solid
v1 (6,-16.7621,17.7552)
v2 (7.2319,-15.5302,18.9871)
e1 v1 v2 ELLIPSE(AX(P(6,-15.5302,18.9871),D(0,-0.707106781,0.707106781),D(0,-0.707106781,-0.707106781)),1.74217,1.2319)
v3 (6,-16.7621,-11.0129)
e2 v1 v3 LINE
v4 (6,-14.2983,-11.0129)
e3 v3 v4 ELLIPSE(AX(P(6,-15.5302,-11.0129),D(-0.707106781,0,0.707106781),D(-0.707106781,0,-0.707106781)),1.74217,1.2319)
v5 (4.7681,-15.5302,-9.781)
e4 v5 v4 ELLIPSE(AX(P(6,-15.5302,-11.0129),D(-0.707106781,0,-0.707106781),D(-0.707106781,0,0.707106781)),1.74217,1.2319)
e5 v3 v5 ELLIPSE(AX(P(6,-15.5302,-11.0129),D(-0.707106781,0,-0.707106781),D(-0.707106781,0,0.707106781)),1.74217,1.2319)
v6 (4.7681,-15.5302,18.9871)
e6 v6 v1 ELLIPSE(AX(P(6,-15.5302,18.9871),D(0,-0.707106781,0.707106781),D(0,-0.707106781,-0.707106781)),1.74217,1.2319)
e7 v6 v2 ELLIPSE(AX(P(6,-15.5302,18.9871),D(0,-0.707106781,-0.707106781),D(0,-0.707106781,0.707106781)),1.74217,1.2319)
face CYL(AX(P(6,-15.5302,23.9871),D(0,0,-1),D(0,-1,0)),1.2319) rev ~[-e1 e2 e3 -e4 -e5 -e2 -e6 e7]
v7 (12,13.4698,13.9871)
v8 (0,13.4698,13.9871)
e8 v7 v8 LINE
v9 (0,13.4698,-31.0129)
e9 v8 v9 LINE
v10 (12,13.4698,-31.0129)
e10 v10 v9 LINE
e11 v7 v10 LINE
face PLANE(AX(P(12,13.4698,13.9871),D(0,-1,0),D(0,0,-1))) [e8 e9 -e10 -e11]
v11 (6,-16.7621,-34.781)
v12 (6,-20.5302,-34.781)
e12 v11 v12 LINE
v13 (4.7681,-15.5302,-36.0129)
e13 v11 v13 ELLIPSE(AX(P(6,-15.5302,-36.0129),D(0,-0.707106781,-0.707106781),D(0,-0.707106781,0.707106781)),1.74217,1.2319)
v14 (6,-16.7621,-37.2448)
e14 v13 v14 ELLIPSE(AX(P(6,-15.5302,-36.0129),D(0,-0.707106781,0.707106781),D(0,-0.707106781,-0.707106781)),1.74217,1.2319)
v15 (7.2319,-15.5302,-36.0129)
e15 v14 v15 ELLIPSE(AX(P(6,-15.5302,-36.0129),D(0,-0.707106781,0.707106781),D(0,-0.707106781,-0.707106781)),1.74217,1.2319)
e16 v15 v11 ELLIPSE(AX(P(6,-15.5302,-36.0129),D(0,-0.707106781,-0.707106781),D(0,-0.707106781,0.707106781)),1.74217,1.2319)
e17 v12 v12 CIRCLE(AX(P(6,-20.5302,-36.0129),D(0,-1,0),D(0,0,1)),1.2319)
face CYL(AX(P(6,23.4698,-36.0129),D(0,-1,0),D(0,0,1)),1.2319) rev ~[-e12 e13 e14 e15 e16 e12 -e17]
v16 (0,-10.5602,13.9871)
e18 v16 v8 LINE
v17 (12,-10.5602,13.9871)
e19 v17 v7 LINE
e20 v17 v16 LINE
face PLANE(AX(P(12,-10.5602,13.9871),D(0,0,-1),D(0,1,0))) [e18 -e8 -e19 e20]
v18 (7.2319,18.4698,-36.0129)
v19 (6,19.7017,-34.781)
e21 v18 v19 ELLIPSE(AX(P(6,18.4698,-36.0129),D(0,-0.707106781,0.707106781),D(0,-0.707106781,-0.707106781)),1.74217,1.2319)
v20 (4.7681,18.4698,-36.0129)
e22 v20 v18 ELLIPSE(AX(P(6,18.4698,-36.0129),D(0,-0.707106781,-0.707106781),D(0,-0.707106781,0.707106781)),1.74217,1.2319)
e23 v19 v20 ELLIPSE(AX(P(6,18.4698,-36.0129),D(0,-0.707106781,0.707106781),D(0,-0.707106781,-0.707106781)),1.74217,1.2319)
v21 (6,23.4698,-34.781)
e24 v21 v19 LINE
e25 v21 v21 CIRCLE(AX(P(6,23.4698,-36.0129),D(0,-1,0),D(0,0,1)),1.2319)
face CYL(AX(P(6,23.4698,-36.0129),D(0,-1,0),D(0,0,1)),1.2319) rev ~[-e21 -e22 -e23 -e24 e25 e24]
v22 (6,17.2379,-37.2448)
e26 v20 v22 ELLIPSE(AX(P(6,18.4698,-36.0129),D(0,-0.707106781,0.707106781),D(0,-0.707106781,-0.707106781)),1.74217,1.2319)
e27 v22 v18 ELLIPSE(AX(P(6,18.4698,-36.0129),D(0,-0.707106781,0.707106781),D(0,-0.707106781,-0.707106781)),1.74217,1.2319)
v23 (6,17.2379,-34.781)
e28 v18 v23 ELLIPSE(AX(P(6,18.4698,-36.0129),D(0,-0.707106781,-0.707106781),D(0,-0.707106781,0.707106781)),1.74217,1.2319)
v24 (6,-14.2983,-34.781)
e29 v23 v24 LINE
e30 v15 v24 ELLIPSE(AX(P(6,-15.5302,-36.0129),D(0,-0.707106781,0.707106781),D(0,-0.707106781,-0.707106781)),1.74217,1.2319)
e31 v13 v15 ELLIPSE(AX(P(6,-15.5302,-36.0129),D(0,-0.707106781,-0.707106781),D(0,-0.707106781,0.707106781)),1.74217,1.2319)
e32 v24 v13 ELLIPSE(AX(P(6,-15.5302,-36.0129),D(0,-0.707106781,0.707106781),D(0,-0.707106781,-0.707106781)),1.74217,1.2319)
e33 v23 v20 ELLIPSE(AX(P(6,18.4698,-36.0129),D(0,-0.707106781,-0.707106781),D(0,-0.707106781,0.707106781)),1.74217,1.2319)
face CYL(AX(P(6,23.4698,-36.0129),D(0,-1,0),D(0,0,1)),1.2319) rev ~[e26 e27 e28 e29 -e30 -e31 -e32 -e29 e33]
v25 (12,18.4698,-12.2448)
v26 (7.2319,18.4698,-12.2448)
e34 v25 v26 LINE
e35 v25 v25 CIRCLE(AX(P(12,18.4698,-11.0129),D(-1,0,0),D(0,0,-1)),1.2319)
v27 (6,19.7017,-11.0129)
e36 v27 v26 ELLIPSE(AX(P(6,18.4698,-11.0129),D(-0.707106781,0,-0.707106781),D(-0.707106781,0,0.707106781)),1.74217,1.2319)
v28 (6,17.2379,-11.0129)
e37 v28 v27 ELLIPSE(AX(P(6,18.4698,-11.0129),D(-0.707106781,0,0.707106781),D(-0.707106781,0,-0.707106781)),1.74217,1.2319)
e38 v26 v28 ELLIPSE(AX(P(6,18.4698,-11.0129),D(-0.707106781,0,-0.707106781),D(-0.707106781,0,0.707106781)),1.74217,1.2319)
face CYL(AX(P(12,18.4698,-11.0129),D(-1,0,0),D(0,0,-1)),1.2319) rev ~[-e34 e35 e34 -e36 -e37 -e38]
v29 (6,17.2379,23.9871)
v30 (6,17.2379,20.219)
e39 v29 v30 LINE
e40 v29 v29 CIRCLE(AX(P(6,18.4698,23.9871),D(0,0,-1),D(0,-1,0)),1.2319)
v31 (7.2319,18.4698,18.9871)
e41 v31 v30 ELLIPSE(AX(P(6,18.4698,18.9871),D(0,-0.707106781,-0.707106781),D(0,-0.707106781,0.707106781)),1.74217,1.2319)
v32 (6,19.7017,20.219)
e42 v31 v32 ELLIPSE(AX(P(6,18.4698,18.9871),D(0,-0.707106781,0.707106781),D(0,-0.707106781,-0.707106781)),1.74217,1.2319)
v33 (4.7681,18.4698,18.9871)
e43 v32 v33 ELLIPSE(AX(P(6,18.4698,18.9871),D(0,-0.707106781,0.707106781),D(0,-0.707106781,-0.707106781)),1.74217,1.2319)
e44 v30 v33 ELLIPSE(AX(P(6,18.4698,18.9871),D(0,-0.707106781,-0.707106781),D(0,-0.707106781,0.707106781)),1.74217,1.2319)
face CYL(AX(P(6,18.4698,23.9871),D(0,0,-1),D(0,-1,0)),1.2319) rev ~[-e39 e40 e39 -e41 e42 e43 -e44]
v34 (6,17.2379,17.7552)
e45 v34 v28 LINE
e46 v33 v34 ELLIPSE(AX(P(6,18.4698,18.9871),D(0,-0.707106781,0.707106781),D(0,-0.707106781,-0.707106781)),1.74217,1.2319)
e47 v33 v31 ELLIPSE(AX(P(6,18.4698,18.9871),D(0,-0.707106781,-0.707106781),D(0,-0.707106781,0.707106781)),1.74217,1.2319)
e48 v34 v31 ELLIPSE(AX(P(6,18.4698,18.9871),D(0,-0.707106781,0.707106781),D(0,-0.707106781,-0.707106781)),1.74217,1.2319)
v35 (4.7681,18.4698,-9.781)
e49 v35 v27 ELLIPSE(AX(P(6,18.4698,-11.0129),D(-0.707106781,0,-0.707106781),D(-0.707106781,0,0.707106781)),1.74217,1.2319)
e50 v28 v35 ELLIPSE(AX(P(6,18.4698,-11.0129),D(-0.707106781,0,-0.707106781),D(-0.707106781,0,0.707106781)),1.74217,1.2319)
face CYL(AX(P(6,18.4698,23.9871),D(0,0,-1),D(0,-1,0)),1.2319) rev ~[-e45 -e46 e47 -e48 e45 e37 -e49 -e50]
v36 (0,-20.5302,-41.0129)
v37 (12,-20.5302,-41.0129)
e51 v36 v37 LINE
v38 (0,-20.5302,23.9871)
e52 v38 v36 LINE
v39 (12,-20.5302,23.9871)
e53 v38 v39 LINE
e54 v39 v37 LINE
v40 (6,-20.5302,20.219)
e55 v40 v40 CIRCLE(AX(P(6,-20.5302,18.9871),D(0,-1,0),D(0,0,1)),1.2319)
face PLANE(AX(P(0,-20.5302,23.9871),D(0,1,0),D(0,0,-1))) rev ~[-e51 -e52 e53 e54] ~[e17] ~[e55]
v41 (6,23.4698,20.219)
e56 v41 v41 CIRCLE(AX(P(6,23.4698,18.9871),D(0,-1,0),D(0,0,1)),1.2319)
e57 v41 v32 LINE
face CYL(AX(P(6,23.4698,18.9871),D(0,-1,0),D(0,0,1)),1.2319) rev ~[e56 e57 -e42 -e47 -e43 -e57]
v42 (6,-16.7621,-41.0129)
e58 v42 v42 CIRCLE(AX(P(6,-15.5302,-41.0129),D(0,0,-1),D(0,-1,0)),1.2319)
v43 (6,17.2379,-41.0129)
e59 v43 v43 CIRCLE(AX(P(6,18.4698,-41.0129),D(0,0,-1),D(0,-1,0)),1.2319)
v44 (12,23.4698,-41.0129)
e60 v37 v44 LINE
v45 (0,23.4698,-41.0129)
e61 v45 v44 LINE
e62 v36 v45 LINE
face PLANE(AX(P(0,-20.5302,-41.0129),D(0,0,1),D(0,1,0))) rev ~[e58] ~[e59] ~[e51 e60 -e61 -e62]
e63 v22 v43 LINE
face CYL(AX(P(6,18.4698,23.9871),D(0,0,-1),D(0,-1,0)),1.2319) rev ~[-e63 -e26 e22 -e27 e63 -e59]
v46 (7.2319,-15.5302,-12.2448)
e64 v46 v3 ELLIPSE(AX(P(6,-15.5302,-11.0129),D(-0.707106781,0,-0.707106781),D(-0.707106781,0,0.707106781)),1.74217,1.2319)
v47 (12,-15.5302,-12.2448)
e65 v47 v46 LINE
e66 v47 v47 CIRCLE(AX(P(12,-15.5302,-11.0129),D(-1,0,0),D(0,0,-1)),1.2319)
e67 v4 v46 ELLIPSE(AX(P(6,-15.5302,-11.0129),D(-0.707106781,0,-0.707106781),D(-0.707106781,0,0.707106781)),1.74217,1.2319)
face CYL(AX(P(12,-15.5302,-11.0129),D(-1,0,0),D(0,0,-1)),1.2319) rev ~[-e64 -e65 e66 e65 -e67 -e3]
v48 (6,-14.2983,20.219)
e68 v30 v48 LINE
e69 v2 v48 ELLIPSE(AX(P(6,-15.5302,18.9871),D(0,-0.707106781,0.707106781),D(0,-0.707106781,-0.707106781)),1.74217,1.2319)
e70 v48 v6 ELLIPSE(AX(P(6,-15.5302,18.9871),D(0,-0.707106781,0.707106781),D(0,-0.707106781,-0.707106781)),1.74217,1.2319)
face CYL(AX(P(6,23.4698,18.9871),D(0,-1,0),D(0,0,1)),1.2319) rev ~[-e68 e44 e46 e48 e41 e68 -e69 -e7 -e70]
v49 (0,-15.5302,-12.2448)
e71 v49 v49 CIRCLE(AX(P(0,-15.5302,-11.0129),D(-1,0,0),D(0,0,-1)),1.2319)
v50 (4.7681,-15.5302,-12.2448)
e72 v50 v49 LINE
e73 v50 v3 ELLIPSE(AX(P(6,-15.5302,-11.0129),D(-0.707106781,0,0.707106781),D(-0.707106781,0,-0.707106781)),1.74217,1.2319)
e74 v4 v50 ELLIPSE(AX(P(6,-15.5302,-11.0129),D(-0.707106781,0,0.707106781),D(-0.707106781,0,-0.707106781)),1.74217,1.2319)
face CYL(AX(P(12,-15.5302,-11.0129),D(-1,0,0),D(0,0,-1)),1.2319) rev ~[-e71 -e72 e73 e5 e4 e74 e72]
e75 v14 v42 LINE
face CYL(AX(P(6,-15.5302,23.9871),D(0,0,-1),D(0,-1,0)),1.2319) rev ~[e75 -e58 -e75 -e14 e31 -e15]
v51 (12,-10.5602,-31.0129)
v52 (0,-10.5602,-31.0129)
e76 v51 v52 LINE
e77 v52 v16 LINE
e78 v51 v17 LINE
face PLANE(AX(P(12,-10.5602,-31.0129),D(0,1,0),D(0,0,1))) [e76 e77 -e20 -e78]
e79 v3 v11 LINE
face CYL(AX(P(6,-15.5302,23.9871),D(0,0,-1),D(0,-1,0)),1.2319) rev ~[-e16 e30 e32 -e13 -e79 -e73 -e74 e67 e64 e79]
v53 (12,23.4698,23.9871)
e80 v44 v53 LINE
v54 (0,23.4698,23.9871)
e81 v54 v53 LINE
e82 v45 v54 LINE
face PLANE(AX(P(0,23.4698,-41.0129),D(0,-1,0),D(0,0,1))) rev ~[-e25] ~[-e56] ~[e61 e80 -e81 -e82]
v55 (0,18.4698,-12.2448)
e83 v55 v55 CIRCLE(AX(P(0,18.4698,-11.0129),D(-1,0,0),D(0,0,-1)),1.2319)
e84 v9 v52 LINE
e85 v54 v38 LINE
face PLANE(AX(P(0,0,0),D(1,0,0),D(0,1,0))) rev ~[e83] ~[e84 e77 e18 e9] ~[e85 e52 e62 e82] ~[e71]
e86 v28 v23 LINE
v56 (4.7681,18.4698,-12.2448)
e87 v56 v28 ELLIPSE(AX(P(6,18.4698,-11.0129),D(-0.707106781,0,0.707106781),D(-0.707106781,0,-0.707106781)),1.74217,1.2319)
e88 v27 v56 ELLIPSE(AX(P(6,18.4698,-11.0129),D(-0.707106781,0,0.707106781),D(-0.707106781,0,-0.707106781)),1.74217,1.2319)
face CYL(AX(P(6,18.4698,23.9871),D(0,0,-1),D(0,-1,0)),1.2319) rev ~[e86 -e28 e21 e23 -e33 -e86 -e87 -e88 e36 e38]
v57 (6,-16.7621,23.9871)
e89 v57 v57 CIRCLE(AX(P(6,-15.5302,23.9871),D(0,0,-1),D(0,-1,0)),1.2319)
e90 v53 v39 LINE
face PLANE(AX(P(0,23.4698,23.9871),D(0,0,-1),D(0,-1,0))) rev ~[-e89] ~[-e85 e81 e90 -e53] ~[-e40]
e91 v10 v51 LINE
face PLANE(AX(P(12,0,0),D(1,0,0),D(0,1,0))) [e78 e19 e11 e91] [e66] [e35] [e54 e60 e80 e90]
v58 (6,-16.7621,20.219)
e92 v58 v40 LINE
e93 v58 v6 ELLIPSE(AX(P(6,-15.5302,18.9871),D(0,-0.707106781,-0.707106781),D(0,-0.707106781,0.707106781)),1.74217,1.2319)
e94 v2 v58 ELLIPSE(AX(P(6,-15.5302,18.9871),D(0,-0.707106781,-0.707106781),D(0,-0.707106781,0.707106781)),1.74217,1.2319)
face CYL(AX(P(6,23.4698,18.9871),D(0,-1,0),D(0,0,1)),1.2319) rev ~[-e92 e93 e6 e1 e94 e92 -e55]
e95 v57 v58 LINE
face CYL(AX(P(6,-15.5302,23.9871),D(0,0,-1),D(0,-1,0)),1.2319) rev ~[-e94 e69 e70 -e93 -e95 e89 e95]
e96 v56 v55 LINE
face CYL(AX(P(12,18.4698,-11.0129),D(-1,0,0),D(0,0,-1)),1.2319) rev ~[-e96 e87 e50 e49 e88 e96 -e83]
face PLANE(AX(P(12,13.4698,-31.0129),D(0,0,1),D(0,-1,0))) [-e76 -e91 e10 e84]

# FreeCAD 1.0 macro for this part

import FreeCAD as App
import Part
import Sketcher

V = App.Vector
Q = App.Units.Quantity

doc = App.newDocument("Part")
params = doc.addObject("Spreadsheet::Sheet", "Params")
for row, (alias, value) in enumerate([
    ("sketch1_width", "44 mm"),
    ("sketch1_height", "65 mm"),
    ("pad1_length", "12 mm"),
    ("sketch2_height", "45 mm"),
    ("sketch2_width", "24.03 mm"),
    ("pocket1_length", "50.1 mm"),
    ("hole_diameter", "2.4638 mm"),
    ("hole2_diameter", "2.4638 mm"),
    ("hole3_diameter", "2.4638 mm"),
], start=1):
    params.set(f"A{row}", alias)
    params.set(f"B{row}", "=" + value)
    params.setAlias(f"B{row}", alias)

body = doc.addObject("PartDesign::Body", "Body")

sketch1 = body.newObject("Sketcher::SketchObject", "Sketch")
sketch1.AttachmentSupport = (doc.getObject("YZ_Plane"), [""])
sketch1.MapMode = "FlatFace"
sketch1.addGeometry(Part.LineSegment(V(23, -41, 0), V(23, 24, 0)), False)
sketch1.addGeometry(Part.LineSegment(V(23, 24, 0), V(-21, 24, 0)), False)
sketch1.addGeometry(Part.LineSegment(V(-21, 24, 0), V(-21, -41, 0)), False)
sketch1.addGeometry(Part.LineSegment(V(-21, -41, 0), V(23, -41, 0)), False)
sketch1.addConstraint(Sketcher.Constraint("Coincident", 0, 2, 1, 1))
sketch1.addConstraint(Sketcher.Constraint("Coincident", 1, 2, 2, 1))
sketch1.addConstraint(Sketcher.Constraint("Coincident", 2, 2, 3, 1))
sketch1.addConstraint(Sketcher.Constraint("Coincident", 3, 2, 0, 1))
sketch1.addConstraint(Sketcher.Constraint("Vertical", 0))
sketch1.addConstraint(Sketcher.Constraint("Horizontal", 1))
sketch1.addConstraint(Sketcher.Constraint("Vertical", 2))
sketch1.addConstraint(Sketcher.Constraint("Horizontal", 3))
sketch1.addConstraint(Sketcher.Constraint("DistanceX", 1, 2, 1, 1, Q("44 mm")))
sketch1.addConstraint(Sketcher.Constraint("DistanceY", 0, 1, 0, 2, Q("65 mm")))
sketch1.addConstraint(Sketcher.Constraint("DistanceY", -1, 1, 0, 2, Q("23.987 mm")))
sketch1.addConstraint(Sketcher.Constraint("DistanceX", -1, 1, 0, 2, Q("23.4698 mm")))
sketch1.setExpression("Constraints[8]", "Params.sketch1_width")
sketch1.setExpression("Constraints[9]", "Params.sketch1_height")
pad1 = body.newObject("PartDesign::Pad", "Pad")
pad1.Profile = sketch1
pad1.setExpression("Length", "Params.pad1_length")

sketch2 = body.newObject("Sketcher::SketchObject", "Sketch001")
sketch2.AttachmentSupport = (doc.getObject("YZ_Plane"), [""])
sketch2.MapMode = "FlatFace"
sketch2.AttachmentOffset = App.Placement(V(0, 0, 12), App.Rotation())
sketch2.addGeometry(Part.LineSegment(V(13, -31, 0), V(13, 14, 0)), False)
sketch2.addGeometry(Part.LineSegment(V(13, 14, 0), V(-11, 14, 0)), False)
sketch2.addGeometry(Part.LineSegment(V(-11, 14, 0), V(-11, -31, 0)), False)
sketch2.addGeometry(Part.LineSegment(V(-11, -31, 0), V(13, -31, 0)), False)
sketch2.addConstraint(Sketcher.Constraint("Coincident", 0, 2, 1, 1))
sketch2.addConstraint(Sketcher.Constraint("Coincident", 1, 2, 2, 1))
sketch2.addConstraint(Sketcher.Constraint("Coincident", 2, 2, 3, 1))
sketch2.addConstraint(Sketcher.Constraint("Coincident", 3, 2, 0, 1))
sketch2.addConstraint(Sketcher.Constraint("Vertical", 0))
sketch2.addConstraint(Sketcher.Constraint("Horizontal", 1))
sketch2.addConstraint(Sketcher.Constraint("Vertical", 2))
sketch2.addConstraint(Sketcher.Constraint("Horizontal", 3))
sketch2.addConstraint(Sketcher.Constraint("DistanceY", 0, 1, 0, 2, Q("45 mm")))
sketch2.addConstraint(Sketcher.Constraint("DistanceX", 1, 2, 1, 1, Q("24.03 mm")))
sketch2.addConstraint(Sketcher.Constraint("DistanceY", -1, 1, 0, 2, Q("13.987 mm")))
sketch2.addConstraint(Sketcher.Constraint("DistanceX", -1, 1, 0, 2, Q("13.4698 mm")))
sketch2.setExpression("Constraints[8]", "Params.sketch2_height")
sketch2.setExpression("Constraints[9]", "Params.sketch2_width")
pocket1 = body.newObject("PartDesign::Pocket", "Pocket")
pocket1.Profile = sketch2
pocket1.setExpression("Length", "Params.pocket1_length")

sketch3 = body.newObject("Sketcher::SketchObject", "Sketch002")
sketch3.AttachmentSupport = (doc.getObject("YZ_Plane"), [""])
sketch3.MapMode = "FlatFace"
sketch3.AttachmentOffset = App.Placement(V(0, 0, 12), App.Rotation())
sketch3.addGeometry(Part.Circle(V(18.5, -11, 0), V(0, 0, 1), 1.2), False)
sketch3.addGeometry(Part.Circle(V(-15.5, -11, 0), V(0, 0, 1), 1.2), False)
sketch3.addConstraint(Sketcher.Constraint("Equal", 0, 1))
sketch3.addConstraint(Sketcher.Constraint("Horizontal", 0, 3, 1, 3))
sketch3.addConstraint(Sketcher.Constraint("DistanceX", 1, 3, 0, 3, Q("34 mm")))
sketch3.addConstraint(Sketcher.Constraint("Diameter", 0, Q("2.4638 mm")))
sketch3.addConstraint(Sketcher.Constraint("DistanceY", 0, 3, -1, 1, Q("11.013 mm")))
sketch3.addConstraint(Sketcher.Constraint("DistanceX", -1, 1, 0, 3, Q("18.4698 mm")))
doc.recompute()
hole = body.newObject("PartDesign::Hole", "Hole")
hole.Profile = sketch3
hole.ThreadType = "None"
hole.setExpression("Diameter", "Params.hole_diameter")
hole.DepthType = "ThroughAll"

sketch4 = body.newObject("Sketcher::SketchObject", "Sketch003")
sketch4.AttachmentSupport = (doc.getObject("XZ_Plane"), [""])
sketch4.MapMode = "FlatFace"
sketch4.AttachmentOffset = App.Placement(V(0, 0, -23.4698), App.Rotation())
sketch4.addGeometry(Part.Circle(V(6, 19, 0), V(0, 0, 1), 1.2), False)
sketch4.addGeometry(Part.Circle(V(6, -36, 0), V(0, 0, 1), 1.2), False)
sketch4.addConstraint(Sketcher.Constraint("Equal", 0, 1))
sketch4.addConstraint(Sketcher.Constraint("Vertical", 0, 3, 1, 3))
sketch4.addConstraint(Sketcher.Constraint("DistanceX", -1, 1, 0, 3, Q("6 mm")))
sketch4.addConstraint(Sketcher.Constraint("DistanceY", 1, 3, 0, 3, Q("55 mm")))
sketch4.addConstraint(Sketcher.Constraint("Diameter", 0, Q("2.4638 mm")))
sketch4.addConstraint(Sketcher.Constraint("DistanceY", -1, 1, 0, 3, Q("18.987 mm")))
doc.recompute()
hole2 = body.newObject("PartDesign::Hole", "Hole001")
hole2.Profile = sketch4
hole2.ThreadType = "None"
hole2.setExpression("Diameter", "Params.hole2_diameter")
hole2.DepthType = "ThroughAll"
hole2.Reversed = True

sketch5 = body.newObject("Sketcher::SketchObject", "Sketch004")
sketch5.AttachmentSupport = (doc.getObject("XY_Plane"), [""])
sketch5.MapMode = "FlatFace"
sketch5.AttachmentOffset = App.Placement(V(0, 0, 23.9871), App.Rotation())
sketch5.addGeometry(Part.Circle(V(6, -15.5, 0), V(0, 0, 1), 1.2), False)
sketch5.addGeometry(Part.Circle(V(6, 18.5, 0), V(0, 0, 1), 1.2), False)
sketch5.addConstraint(Sketcher.Constraint("Equal", 0, 1))
sketch5.addConstraint(Sketcher.Constraint("Vertical", 0, 3, 1, 3))
sketch5.addConstraint(Sketcher.Constraint("DistanceX", -1, 1, 0, 3, Q("6 mm")))
sketch5.addConstraint(Sketcher.Constraint("DistanceY", 0, 3, 1, 3, Q("34 mm")))
sketch5.addConstraint(Sketcher.Constraint("Diameter", 0, Q("2.4638 mm")))
sketch5.addConstraint(Sketcher.Constraint("DistanceY", 0, 3, -1, 1, Q("15.5302 mm")))
doc.recompute()
hole3 = body.newObject("PartDesign::Hole", "Hole002")
hole3.Profile = sketch5
hole3.ThreadType = "None"
hole3.setExpression("Diameter", "Params.hole3_diameter")
hole3.DepthType = "ThroughAll"

doc.recompute()
